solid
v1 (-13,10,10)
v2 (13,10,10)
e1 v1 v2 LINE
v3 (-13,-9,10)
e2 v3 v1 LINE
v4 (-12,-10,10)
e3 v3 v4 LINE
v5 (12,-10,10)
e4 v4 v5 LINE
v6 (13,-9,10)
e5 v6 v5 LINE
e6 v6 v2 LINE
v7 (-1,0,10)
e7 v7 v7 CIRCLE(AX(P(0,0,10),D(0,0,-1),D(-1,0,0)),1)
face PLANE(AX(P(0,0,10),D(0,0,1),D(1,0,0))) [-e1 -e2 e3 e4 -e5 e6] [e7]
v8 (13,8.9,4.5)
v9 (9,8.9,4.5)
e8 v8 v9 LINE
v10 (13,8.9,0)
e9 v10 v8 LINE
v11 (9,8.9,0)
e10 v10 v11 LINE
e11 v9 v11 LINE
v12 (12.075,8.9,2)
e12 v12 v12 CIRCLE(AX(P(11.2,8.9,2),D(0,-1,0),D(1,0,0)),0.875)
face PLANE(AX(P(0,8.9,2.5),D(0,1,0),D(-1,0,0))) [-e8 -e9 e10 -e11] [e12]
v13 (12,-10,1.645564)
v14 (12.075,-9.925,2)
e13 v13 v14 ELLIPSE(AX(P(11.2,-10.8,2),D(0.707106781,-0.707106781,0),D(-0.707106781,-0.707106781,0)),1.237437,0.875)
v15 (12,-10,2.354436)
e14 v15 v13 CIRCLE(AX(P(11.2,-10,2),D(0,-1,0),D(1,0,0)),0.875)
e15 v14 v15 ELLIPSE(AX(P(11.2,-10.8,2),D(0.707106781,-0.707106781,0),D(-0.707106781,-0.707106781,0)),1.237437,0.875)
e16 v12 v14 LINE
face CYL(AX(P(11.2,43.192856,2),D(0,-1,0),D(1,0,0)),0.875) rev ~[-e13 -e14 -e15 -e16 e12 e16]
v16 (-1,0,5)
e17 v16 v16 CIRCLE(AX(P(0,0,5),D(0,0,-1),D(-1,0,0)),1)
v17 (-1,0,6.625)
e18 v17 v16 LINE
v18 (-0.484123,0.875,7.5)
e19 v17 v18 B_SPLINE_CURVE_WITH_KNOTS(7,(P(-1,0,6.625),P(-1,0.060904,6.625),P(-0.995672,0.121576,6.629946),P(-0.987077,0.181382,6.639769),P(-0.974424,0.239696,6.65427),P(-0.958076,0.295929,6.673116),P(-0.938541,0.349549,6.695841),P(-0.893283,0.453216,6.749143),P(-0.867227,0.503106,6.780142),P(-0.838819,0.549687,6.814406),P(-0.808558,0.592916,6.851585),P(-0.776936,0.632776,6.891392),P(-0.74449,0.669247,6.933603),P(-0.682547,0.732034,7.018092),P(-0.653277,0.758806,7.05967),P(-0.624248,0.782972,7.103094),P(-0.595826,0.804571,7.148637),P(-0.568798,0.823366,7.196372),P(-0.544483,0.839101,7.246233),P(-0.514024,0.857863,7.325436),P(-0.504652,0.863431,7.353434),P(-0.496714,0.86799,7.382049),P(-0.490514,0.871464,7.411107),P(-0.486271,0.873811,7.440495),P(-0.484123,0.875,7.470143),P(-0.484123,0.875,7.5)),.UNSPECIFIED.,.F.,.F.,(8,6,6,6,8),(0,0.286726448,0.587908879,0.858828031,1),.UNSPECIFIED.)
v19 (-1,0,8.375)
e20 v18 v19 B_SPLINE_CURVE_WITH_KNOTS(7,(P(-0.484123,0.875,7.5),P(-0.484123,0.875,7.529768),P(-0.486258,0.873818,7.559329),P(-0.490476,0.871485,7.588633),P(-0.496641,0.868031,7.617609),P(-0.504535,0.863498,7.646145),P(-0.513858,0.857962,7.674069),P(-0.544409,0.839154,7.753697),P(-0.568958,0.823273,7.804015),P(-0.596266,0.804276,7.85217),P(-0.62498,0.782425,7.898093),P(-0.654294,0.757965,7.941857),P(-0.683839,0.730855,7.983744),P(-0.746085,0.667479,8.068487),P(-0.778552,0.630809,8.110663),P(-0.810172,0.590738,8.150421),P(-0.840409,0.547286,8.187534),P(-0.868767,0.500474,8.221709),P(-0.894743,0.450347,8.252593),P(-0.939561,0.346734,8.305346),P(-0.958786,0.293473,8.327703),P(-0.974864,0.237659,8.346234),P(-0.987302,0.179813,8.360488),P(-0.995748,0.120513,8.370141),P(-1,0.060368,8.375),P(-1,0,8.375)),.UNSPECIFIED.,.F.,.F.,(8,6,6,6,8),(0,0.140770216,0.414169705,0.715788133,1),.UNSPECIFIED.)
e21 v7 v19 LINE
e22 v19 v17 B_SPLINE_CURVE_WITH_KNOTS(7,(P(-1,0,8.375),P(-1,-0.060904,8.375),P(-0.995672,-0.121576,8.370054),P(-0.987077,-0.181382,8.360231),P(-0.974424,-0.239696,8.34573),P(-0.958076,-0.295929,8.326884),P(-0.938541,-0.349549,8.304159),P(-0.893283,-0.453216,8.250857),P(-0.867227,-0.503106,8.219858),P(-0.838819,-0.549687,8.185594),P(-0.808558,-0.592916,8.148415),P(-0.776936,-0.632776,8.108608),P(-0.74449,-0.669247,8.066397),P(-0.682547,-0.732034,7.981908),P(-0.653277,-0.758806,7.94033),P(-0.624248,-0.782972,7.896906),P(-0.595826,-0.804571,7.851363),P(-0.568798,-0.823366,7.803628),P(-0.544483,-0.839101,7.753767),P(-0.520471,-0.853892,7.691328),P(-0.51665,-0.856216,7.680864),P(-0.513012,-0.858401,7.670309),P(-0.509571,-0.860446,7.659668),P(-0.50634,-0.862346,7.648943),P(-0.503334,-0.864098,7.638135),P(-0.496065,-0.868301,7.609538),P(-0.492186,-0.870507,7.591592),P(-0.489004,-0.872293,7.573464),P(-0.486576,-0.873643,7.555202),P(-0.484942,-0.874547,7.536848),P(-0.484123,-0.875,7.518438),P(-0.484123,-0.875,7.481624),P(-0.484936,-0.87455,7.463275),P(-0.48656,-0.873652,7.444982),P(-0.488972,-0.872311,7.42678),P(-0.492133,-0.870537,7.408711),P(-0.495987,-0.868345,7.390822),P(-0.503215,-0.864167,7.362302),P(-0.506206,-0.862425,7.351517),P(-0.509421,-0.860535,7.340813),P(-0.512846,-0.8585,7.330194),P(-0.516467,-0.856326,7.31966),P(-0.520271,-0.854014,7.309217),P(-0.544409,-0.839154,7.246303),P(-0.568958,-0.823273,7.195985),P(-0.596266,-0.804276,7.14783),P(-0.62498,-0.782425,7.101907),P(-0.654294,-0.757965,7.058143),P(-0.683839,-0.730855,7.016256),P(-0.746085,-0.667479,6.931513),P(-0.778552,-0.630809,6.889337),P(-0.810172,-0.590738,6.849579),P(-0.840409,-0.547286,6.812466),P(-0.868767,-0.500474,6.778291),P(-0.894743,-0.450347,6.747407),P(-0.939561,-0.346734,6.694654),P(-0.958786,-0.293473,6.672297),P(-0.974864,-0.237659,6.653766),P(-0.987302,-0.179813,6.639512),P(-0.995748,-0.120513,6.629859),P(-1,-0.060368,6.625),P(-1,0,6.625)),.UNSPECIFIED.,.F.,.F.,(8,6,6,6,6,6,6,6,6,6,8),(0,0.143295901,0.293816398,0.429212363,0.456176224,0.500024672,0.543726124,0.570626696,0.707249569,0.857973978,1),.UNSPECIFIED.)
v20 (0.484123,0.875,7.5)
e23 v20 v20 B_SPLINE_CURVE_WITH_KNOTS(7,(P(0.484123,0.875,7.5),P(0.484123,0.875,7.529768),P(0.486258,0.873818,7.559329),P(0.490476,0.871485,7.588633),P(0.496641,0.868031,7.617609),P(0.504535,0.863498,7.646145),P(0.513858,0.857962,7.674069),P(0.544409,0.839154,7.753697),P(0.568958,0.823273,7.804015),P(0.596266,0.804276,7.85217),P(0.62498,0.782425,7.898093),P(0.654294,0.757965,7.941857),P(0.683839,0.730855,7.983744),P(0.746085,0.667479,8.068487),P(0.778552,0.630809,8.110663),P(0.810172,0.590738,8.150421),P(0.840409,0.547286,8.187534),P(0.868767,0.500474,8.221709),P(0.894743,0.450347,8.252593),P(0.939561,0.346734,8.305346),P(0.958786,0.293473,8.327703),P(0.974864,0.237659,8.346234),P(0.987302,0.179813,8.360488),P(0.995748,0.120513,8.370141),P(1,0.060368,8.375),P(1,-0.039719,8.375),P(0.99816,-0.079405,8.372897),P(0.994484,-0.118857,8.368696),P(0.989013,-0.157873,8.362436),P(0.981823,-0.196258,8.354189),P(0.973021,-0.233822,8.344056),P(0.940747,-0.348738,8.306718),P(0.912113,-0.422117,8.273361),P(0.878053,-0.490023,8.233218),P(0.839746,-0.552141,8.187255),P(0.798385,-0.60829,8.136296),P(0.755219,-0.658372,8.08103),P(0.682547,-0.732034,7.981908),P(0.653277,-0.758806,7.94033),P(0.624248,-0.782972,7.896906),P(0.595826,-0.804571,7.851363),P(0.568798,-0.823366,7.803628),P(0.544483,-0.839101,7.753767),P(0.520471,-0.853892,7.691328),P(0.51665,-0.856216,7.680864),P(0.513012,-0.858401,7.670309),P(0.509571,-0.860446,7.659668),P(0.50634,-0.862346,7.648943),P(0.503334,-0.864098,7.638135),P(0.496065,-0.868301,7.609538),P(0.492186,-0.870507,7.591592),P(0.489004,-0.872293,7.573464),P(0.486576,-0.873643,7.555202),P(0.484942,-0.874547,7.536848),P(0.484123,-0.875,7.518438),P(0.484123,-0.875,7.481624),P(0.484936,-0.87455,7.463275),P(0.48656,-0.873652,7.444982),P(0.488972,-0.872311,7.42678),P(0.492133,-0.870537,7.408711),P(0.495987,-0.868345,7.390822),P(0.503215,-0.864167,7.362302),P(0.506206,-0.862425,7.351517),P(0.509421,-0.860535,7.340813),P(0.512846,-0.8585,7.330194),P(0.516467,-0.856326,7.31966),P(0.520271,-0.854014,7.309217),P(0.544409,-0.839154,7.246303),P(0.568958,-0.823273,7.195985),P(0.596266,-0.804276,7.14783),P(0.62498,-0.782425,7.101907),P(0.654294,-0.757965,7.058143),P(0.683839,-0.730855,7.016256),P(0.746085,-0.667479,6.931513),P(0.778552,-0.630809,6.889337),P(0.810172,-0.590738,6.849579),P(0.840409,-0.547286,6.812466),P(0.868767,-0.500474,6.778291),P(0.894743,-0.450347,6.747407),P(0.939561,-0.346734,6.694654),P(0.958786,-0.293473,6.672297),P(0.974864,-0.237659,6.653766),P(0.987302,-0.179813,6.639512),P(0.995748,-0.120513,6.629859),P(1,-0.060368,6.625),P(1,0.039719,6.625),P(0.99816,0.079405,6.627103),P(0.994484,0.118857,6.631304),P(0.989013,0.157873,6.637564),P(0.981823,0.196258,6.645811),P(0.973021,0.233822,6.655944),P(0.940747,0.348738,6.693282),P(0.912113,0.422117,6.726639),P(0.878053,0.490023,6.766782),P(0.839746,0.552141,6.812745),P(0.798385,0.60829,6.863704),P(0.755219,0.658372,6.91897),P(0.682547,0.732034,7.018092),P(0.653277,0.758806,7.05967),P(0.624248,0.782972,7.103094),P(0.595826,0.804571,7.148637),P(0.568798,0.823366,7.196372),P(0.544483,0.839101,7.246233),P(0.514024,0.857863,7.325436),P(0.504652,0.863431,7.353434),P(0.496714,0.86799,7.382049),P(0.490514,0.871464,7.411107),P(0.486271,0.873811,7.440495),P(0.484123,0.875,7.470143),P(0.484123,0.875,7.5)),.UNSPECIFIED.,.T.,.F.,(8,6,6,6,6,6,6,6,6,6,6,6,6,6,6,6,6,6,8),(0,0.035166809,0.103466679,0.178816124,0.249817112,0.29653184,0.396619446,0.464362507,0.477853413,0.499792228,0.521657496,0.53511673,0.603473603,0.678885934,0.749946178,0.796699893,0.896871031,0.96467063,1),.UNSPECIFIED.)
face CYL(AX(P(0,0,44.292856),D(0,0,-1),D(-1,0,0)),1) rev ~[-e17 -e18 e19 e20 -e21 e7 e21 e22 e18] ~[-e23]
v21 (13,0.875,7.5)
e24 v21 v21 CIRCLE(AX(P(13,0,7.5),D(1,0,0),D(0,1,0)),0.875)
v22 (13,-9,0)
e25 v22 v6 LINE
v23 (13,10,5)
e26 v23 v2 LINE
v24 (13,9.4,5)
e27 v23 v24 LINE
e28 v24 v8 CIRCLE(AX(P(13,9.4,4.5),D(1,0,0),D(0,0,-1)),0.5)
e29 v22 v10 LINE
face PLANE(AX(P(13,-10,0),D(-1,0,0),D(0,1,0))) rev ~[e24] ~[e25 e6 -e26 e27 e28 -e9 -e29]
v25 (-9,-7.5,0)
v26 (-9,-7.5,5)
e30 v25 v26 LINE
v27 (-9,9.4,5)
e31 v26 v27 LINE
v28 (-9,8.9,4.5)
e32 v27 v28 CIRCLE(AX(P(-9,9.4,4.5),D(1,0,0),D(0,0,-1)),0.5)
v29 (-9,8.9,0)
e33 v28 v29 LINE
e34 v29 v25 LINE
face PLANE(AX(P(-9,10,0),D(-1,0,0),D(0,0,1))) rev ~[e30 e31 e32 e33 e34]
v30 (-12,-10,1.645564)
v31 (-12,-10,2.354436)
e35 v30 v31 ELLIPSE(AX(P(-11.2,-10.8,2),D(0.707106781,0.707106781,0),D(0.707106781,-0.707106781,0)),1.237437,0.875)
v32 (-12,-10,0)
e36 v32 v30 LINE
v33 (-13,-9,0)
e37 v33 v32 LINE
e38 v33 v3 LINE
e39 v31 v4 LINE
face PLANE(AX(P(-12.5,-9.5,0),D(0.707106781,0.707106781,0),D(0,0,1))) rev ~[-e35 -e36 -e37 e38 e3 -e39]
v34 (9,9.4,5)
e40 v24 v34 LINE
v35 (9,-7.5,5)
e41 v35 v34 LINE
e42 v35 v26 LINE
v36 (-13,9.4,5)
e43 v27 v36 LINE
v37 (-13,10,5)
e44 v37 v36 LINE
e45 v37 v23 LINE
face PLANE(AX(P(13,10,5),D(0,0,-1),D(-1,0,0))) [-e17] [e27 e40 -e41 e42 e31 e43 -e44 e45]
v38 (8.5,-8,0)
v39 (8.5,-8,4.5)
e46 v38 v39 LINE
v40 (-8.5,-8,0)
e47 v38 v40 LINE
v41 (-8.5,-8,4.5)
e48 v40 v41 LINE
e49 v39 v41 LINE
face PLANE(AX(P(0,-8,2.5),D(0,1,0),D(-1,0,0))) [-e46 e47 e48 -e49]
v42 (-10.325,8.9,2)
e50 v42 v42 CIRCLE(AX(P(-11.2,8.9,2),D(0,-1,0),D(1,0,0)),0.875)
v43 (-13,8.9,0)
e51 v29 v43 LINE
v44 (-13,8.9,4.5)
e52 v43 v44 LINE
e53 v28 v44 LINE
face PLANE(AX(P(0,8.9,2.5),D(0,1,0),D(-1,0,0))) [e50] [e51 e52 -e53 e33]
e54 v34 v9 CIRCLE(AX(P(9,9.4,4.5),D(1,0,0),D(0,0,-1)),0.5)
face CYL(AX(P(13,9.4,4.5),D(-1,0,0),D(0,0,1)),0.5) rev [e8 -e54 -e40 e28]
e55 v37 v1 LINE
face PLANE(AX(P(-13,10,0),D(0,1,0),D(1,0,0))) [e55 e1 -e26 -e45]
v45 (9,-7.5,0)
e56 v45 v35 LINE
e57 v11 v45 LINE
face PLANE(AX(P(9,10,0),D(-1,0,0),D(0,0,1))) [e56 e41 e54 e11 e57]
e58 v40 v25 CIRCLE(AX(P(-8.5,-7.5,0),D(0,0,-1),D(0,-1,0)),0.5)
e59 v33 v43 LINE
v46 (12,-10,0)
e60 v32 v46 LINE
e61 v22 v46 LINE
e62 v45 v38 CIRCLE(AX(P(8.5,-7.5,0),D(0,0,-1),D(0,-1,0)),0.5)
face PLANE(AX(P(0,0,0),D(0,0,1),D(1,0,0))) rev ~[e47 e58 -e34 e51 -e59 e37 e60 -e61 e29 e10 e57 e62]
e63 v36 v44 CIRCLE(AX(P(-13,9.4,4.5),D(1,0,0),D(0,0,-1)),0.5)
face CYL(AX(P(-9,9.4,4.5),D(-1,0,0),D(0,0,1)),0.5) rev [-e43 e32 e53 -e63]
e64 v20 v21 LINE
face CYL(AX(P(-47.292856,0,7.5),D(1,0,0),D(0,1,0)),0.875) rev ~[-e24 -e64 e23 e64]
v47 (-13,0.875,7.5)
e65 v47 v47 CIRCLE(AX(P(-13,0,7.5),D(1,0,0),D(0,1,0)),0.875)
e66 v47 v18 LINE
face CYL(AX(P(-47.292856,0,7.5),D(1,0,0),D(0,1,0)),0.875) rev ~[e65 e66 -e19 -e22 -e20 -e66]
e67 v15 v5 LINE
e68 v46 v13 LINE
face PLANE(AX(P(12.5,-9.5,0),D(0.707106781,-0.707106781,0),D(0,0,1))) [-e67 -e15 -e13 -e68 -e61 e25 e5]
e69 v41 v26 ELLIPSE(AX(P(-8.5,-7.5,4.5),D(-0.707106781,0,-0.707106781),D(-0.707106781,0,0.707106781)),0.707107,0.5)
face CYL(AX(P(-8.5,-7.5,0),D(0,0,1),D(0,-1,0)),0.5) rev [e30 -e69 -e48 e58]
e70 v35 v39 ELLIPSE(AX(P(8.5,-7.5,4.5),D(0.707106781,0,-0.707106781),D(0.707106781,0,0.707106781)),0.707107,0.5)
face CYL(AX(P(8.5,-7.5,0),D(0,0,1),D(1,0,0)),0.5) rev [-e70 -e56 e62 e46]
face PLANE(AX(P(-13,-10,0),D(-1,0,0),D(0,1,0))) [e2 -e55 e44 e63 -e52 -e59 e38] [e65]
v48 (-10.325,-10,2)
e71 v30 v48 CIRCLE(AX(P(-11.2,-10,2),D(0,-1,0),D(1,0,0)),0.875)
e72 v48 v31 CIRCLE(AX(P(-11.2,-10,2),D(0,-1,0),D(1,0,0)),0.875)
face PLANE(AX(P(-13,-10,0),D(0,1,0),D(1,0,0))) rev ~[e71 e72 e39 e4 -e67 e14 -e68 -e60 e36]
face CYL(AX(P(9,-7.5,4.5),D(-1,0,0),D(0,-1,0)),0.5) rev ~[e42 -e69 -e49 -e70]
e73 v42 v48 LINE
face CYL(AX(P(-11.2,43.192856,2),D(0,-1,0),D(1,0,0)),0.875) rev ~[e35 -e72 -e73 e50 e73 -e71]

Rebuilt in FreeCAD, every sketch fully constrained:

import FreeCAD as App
import Part
import Sketcher


def edges_at(feature, points):
    """Names of the edges that pass closest to the given points."""
    edges = feature.Shape.Edges
    near = lambda p: min(range(len(edges)), key=lambda i: edges[i].distToShape(Part.Vertex(*p))[0])
    return sorted({f"Edge{near(p) + 1}" for p in points})

doc = App.newDocument("Part")
body = doc.addObject("PartDesign::Body", "Body")

# Sketch on XY plane
sketch1 = doc.addObject("Sketcher::SketchObject", "Sketch")
body.addObject(sketch1)
sketch1.AttachmentSupport = (doc.XY_Plane, [""])
sketch1.MapMode = "FlatFace"
sketch1.addGeometry([
    Part.LineSegment(App.Vector(-13, 10, 0), App.Vector(-13, -10, 0)),
    Part.LineSegment(App.Vector(-13, -10, 0), App.Vector(13, -10, 0)),
    Part.LineSegment(App.Vector(13, -10, 0), App.Vector(13, 10, 0)),
    Part.LineSegment(App.Vector(13, 10, 0), App.Vector(-13, 10, 0)),
], False)
sketch1.addConstraint([
    Sketcher.Constraint("Coincident", 0, 2, 1, 1),
    Sketcher.Constraint("Coincident", 1, 2, 2, 1),
    Sketcher.Constraint("Coincident", 2, 2, 3, 1),
    Sketcher.Constraint("Coincident", 3, 2, 0, 1),
    Sketcher.Constraint("Vertical", 0),
    Sketcher.Constraint("Horizontal", 1),
    Sketcher.Constraint("Vertical", 2),
    Sketcher.Constraint("Horizontal", 3),
    Sketcher.Constraint("Symmetric", 0, 2, 2, 2, -1, 1),
    Sketcher.Constraint("DistanceX", 1, 1, 1, 2, 26.0),
    Sketcher.Constraint("DistanceY", 0, 2, 0, 1, 20.0),
])
pad1 = doc.addObject("PartDesign::Pad", "Pad")
body.addObject(pad1)
pad1.Profile = sketch1
pad1.Length = 10

# Sketch on XZ plane
sketch2 = doc.addObject("Sketcher::SketchObject", "Sketch001")
body.addObject(sketch2)
sketch2.AttachmentSupport = (doc.XZ_Plane, [""])
sketch2.MapMode = "FlatFace"
sketch2.AttachmentOffset = App.Placement(App.Vector(0, 0, -10), App.Rotation())
sketch2.addGeometry([
    Part.LineSegment(App.Vector(9, 5, 0), App.Vector(9, 0, 0)),
    Part.LineSegment(App.Vector(9, 0, 0), App.Vector(-9, 0, 0)),
    Part.LineSegment(App.Vector(-9, 0, 0), App.Vector(-9, 5, 0)),
    Part.LineSegment(App.Vector(-9, 5, 0), App.Vector(9, 5, 0)),
], False)
sketch2.addConstraint([
    Sketcher.Constraint("Coincident", 0, 2, 1, 1),
    Sketcher.Constraint("Coincident", 1, 2, 2, 1),
    Sketcher.Constraint("Coincident", 2, 2, 3, 1),
    Sketcher.Constraint("Coincident", 3, 2, 0, 1),
    Sketcher.Constraint("Vertical", 0),
    Sketcher.Constraint("Horizontal", 1),
    Sketcher.Constraint("Vertical", 2),
    Sketcher.Constraint("Horizontal", 3),
    Sketcher.Constraint("Symmetric", 0, 2, 1, 2, -1, 1),
    Sketcher.Constraint("DistanceX", 1, 2, 1, 1, 18.0),
    Sketcher.Constraint("DistanceY", 0, 2, 0, 1, 5.0),
])
pocket1 = doc.addObject("PartDesign::Pocket", "Pocket")
body.addObject(pocket1)
pocket1.Profile = sketch2
pocket1.Length = 18
pocket1.Reversed = True

# Sketch on XZ plane
sketch3 = doc.addObject("Sketcher::SketchObject", "Sketch002")
body.addObject(sketch3)
sketch3.AttachmentSupport = (doc.XZ_Plane, [""])
sketch3.MapMode = "FlatFace"
sketch3.AttachmentOffset = App.Placement(App.Vector(0, 0, -10), App.Rotation())
sketch3.addGeometry([
    Part.LineSegment(App.Vector(13, 5, 0), App.Vector(13, 0, 0)),
    Part.LineSegment(App.Vector(13, 0, 0), App.Vector(-13, 0, 0)),
    Part.LineSegment(App.Vector(-13, 0, 0), App.Vector(-13, 5, 0)),
    Part.LineSegment(App.Vector(-13, 5, 0), App.Vector(13, 5, 0)),
], False)
sketch3.addConstraint([
    Sketcher.Constraint("Coincident", 0, 2, 1, 1),
    Sketcher.Constraint("Coincident", 1, 2, 2, 1),
    Sketcher.Constraint("Coincident", 2, 2, 3, 1),
    Sketcher.Constraint("Coincident", 3, 2, 0, 1),
    Sketcher.Constraint("Vertical", 0),
    Sketcher.Constraint("Horizontal", 1),
    Sketcher.Constraint("Vertical", 2),
    Sketcher.Constraint("Horizontal", 3),
    Sketcher.Constraint("Symmetric", 0, 2, 1, 2, -1, 1),
    Sketcher.Constraint("DistanceX", 1, 2, 1, 1, 26.0),
    Sketcher.Constraint("DistanceY", 0, 2, 0, 1, 5.0),
])
pocket2 = doc.addObject("PartDesign::Pocket", "Pocket001")
body.addObject(pocket2)
pocket2.Profile = sketch3
pocket2.Length = 1.1
pocket2.Reversed = True
doc.recompute()

fillet = doc.addObject("PartDesign::Fillet", "Fillet")
body.addObject(fillet)
fillet.Base = (pocket2, edges_at(pocket2, [(9, -8, 2.5), (-9, -8, 2.5), (0, -8, 5)]))
fillet.Radius = 0.5
doc.recompute()

fillet2 = doc.addObject("PartDesign::Fillet", "Fillet001")
body.addObject(fillet2)
fillet2.Base = (fillet, edges_at(fillet, [(-11, 8.9, 5), (11, 8.9, 5)]))
fillet2.Radius = 0.5
doc.recompute()

chamfer = doc.addObject("PartDesign::Chamfer", "Chamfer")
body.addObject(chamfer)
chamfer.Base = (fillet2, edges_at(fillet2, [(13, -10, 5), (-13, -10, 5)]))
chamfer.Size = 1

# Sketch on XZ plane
sketch4 = doc.addObject("Sketcher::SketchObject", "Sketch003")
body.addObject(sketch4)
sketch4.AttachmentSupport = (doc.XZ_Plane, [""])
sketch4.MapMode = "FlatFace"
sketch4.AttachmentOffset = App.Placement(App.Vector(0, 0, -8.9), App.Rotation())
sketch4.addGeometry([
    Part.Circle(App.Vector(11.2, 2, 0), App.Vector(0, 0, 1), 0.9),
    Part.Circle(App.Vector(-11.2, 2, 0), App.Vector(0, 0, 1), 0.9),
], False)
sketch4.addConstraint([
    Sketcher.Constraint("Equal", 0, 1),
    Sketcher.Constraint("Symmetric", 0, 3, 1, 3, -2),
    Sketcher.Constraint("Diameter", 0, 1.75),
    Sketcher.Constraint("DistanceY", -1, 1, 0, 3, 2.0),
    Sketcher.Constraint("DistanceX", -1, 1, 0, 3, 11.2),
])
doc.recompute()
hole = doc.addObject("PartDesign::Hole", "Hole")
body.addObject(hole)
hole.Profile = sketch4
hole.ThreadType = "None"
hole.Diameter = 1.75
hole.DepthType = "ThroughAll"
hole.Reversed = True

# Sketch on YZ plane
sketch5 = doc.addObject("Sketcher::SketchObject", "Sketch004")
body.addObject(sketch5)
sketch5.AttachmentSupport = (doc.YZ_Plane, [""])
sketch5.MapMode = "FlatFace"
sketch5.AttachmentOffset = App.Placement(App.Vector(0, 0, -13), App.Rotation())
sketch5.addGeometry(Part.Circle(App.Vector(0, 7.5, 0), App.Vector(0, 0, 1), 0.9), False)
sketch5.addConstraint([
    Sketcher.Constraint("PointOnObject", 0, 3, -2),
    Sketcher.Constraint("Diameter", 0, 1.75),
    Sketcher.Constraint("DistanceY", -1, 1, 0, 3, 7.5),
])
doc.recompute()
hole2 = doc.addObject("PartDesign::Hole", "Hole001")
body.addObject(hole2)
hole2.Profile = sketch5
hole2.ThreadType = "None"
hole2.Diameter = 1.75
hole2.DepthType = "ThroughAll"
hole2.Reversed = True

# Sketch on XY plane
sketch6 = doc.addObject("Sketcher::SketchObject", "Sketch005")
body.addObject(sketch6)
sketch6.AttachmentSupport = (doc.XY_Plane, [""])
sketch6.MapMode = "FlatFace"
sketch6.AttachmentOffset = App.Placement(App.Vector(0, 0, 10), App.Rotation())
sketch6.addGeometry(Part.Circle(App.Vector(0, 0, 0), App.Vector(0, 0, 1), 1), False)
sketch6.addConstraint([
    Sketcher.Constraint("Coincident", 0, 3, -1, 1),
    Sketcher.Constraint("Diameter", 0, 2.0),
])
doc.recompute()
hole3 = doc.addObject("PartDesign::Hole", "Hole002")
body.addObject(hole3)
hole3.Profile = sketch6
hole3.ThreadType = "None"
hole3.Diameter = 2
hole3.DepthType = "ThroughAll"

doc.recompute()
